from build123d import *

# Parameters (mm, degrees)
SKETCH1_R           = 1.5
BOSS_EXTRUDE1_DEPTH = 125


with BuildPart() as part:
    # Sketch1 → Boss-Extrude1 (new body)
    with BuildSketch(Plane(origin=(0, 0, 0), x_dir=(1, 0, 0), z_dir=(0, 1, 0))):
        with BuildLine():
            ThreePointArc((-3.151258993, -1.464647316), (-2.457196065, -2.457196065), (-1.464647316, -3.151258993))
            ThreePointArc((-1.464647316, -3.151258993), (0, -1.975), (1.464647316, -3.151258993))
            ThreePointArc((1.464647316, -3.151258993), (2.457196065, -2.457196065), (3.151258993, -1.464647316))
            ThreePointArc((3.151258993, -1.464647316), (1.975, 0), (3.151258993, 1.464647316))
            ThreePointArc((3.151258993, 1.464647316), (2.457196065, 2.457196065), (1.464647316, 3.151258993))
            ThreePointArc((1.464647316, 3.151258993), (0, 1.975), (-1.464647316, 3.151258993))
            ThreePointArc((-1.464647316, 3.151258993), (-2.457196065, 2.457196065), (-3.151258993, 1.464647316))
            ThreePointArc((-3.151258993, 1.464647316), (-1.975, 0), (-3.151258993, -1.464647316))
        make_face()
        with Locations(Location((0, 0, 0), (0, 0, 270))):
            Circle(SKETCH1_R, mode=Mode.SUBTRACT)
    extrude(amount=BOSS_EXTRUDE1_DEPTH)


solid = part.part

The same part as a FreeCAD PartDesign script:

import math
import FreeCAD as App
import Part
import Sketcher
from FreeCAD import Vector
Q = App.Units.Quantity

doc = App.newDocument("Part")
body = doc.addObject("PartDesign::Body", "Body")

# Sketch on XZ plane
sketch1 = body.newObject("Sketcher::SketchObject", "Sketch")
sketch1.AttachmentSupport = (doc.getObject("XZ_Plane"), [""])
sketch1.MapMode = "FlatFace"
sketch1.addGeometry([
    Part.ArcOfCircle(Part.Circle(Vector(0, 0, 0), Vector(0, 0, 1), 3.5), math.radians(115), math.radians(155)),  # 0
    Part.ArcOfCircle(Part.Circle(Vector(0, 3.5, 0), Vector(0, 0, 1), 1.5), math.radians(-168), math.radians(-12)),  # 1
    Part.ArcOfCircle(Part.Circle(Vector(0, 0, 0), Vector(0, 0, 1), 3.5), math.radians(25), math.radians(65)),  # 2
    Part.ArcOfCircle(Part.Circle(Vector(3.5, 0, 0), Vector(0, 0, 1), 1.5), math.radians(102), math.radians(258)),  # 3
    Part.ArcOfCircle(Part.Circle(Vector(0, 0, 0), Vector(0, 0, 1), 3.5), math.radians(-65), math.radians(-25)),  # 4
    Part.ArcOfCircle(Part.Circle(Vector(0, -3.5, 0), Vector(0, 0, 1), 1.5), math.radians(12), math.radians(168)),  # 5
    Part.ArcOfCircle(Part.Circle(Vector(0, 0, 0), Vector(0, 0, 1), 3.5), math.radians(-155), math.radians(-115)),  # 6
    Part.ArcOfCircle(Part.Circle(Vector(-3.5, 0, 0), Vector(0, 0, 1), 1.5), math.radians(-78), math.radians(78)),  # 7
    Part.Circle(Vector(0, 0, 0), Vector(0, 0, 1), 1.5),  # 8
], False)
sketch1.addConstraint([
    Sketcher.Constraint("Coincident", 0, 1, 1, 1),
    Sketcher.Constraint("Coincident", 1, 2, 2, 2),
    Sketcher.Constraint("Coincident", 2, 1, 3, 1),
    Sketcher.Constraint("Coincident", 3, 2, 4, 2),
    Sketcher.Constraint("Coincident", 4, 1, 5, 1),
    Sketcher.Constraint("Coincident", 5, 2, 6, 2),
    Sketcher.Constraint("Coincident", 6, 1, 7, 1),
    Sketcher.Constraint("Coincident", 7, 2, 0, 2),
    Sketcher.Constraint("Coincident", 0, 3, -1, 1),
    Sketcher.Constraint("Coincident", 2, 3, -1, 1),
    Sketcher.Constraint("Coincident", 4, 3, -1, 1),
    Sketcher.Constraint("Coincident", 6, 3, -1, 1),
    Sketcher.Constraint("Coincident", 8, 3, -1, 1),
    Sketcher.Constraint("Equal", 0, 2),
    Sketcher.Constraint("Equal", 1, 3),
    Sketcher.Constraint("Equal", 2, 4),
    Sketcher.Constraint("Equal", 3, 5),
    Sketcher.Constraint("Equal", 4, 6),
    Sketcher.Constraint("Equal", 5, 7),
    Sketcher.Constraint("Equal", 7, 8),
    Sketcher.Constraint("Symmetric", 1, 3, 5, 3, -1, 1),
    Sketcher.Constraint("Symmetric", 3, 3, 7, 3, -1, 1),
    Sketcher.Constraint("PointOnObject", 1, 3, -2),
    Sketcher.Constraint("PointOnObject", 3, 3, -1),
    Sketcher.Constraint("Diameter", 8, Q("3 mm")),
    Sketcher.Constraint("Radius", 0, Q("3.475 mm")),
    Sketcher.Constraint("DistanceY", 5, 3, 1, 3, Q("6.95 mm")),
    Sketcher.Constraint("DistanceX", -1, 1, 3, 3, Q("3.475 mm")),
])
pad1 = body.newObject("PartDesign::Pad", "Pad")
pad1.Profile = sketch1
pad1.Length = 125
pad1.Reversed = True

doc.recompute()
